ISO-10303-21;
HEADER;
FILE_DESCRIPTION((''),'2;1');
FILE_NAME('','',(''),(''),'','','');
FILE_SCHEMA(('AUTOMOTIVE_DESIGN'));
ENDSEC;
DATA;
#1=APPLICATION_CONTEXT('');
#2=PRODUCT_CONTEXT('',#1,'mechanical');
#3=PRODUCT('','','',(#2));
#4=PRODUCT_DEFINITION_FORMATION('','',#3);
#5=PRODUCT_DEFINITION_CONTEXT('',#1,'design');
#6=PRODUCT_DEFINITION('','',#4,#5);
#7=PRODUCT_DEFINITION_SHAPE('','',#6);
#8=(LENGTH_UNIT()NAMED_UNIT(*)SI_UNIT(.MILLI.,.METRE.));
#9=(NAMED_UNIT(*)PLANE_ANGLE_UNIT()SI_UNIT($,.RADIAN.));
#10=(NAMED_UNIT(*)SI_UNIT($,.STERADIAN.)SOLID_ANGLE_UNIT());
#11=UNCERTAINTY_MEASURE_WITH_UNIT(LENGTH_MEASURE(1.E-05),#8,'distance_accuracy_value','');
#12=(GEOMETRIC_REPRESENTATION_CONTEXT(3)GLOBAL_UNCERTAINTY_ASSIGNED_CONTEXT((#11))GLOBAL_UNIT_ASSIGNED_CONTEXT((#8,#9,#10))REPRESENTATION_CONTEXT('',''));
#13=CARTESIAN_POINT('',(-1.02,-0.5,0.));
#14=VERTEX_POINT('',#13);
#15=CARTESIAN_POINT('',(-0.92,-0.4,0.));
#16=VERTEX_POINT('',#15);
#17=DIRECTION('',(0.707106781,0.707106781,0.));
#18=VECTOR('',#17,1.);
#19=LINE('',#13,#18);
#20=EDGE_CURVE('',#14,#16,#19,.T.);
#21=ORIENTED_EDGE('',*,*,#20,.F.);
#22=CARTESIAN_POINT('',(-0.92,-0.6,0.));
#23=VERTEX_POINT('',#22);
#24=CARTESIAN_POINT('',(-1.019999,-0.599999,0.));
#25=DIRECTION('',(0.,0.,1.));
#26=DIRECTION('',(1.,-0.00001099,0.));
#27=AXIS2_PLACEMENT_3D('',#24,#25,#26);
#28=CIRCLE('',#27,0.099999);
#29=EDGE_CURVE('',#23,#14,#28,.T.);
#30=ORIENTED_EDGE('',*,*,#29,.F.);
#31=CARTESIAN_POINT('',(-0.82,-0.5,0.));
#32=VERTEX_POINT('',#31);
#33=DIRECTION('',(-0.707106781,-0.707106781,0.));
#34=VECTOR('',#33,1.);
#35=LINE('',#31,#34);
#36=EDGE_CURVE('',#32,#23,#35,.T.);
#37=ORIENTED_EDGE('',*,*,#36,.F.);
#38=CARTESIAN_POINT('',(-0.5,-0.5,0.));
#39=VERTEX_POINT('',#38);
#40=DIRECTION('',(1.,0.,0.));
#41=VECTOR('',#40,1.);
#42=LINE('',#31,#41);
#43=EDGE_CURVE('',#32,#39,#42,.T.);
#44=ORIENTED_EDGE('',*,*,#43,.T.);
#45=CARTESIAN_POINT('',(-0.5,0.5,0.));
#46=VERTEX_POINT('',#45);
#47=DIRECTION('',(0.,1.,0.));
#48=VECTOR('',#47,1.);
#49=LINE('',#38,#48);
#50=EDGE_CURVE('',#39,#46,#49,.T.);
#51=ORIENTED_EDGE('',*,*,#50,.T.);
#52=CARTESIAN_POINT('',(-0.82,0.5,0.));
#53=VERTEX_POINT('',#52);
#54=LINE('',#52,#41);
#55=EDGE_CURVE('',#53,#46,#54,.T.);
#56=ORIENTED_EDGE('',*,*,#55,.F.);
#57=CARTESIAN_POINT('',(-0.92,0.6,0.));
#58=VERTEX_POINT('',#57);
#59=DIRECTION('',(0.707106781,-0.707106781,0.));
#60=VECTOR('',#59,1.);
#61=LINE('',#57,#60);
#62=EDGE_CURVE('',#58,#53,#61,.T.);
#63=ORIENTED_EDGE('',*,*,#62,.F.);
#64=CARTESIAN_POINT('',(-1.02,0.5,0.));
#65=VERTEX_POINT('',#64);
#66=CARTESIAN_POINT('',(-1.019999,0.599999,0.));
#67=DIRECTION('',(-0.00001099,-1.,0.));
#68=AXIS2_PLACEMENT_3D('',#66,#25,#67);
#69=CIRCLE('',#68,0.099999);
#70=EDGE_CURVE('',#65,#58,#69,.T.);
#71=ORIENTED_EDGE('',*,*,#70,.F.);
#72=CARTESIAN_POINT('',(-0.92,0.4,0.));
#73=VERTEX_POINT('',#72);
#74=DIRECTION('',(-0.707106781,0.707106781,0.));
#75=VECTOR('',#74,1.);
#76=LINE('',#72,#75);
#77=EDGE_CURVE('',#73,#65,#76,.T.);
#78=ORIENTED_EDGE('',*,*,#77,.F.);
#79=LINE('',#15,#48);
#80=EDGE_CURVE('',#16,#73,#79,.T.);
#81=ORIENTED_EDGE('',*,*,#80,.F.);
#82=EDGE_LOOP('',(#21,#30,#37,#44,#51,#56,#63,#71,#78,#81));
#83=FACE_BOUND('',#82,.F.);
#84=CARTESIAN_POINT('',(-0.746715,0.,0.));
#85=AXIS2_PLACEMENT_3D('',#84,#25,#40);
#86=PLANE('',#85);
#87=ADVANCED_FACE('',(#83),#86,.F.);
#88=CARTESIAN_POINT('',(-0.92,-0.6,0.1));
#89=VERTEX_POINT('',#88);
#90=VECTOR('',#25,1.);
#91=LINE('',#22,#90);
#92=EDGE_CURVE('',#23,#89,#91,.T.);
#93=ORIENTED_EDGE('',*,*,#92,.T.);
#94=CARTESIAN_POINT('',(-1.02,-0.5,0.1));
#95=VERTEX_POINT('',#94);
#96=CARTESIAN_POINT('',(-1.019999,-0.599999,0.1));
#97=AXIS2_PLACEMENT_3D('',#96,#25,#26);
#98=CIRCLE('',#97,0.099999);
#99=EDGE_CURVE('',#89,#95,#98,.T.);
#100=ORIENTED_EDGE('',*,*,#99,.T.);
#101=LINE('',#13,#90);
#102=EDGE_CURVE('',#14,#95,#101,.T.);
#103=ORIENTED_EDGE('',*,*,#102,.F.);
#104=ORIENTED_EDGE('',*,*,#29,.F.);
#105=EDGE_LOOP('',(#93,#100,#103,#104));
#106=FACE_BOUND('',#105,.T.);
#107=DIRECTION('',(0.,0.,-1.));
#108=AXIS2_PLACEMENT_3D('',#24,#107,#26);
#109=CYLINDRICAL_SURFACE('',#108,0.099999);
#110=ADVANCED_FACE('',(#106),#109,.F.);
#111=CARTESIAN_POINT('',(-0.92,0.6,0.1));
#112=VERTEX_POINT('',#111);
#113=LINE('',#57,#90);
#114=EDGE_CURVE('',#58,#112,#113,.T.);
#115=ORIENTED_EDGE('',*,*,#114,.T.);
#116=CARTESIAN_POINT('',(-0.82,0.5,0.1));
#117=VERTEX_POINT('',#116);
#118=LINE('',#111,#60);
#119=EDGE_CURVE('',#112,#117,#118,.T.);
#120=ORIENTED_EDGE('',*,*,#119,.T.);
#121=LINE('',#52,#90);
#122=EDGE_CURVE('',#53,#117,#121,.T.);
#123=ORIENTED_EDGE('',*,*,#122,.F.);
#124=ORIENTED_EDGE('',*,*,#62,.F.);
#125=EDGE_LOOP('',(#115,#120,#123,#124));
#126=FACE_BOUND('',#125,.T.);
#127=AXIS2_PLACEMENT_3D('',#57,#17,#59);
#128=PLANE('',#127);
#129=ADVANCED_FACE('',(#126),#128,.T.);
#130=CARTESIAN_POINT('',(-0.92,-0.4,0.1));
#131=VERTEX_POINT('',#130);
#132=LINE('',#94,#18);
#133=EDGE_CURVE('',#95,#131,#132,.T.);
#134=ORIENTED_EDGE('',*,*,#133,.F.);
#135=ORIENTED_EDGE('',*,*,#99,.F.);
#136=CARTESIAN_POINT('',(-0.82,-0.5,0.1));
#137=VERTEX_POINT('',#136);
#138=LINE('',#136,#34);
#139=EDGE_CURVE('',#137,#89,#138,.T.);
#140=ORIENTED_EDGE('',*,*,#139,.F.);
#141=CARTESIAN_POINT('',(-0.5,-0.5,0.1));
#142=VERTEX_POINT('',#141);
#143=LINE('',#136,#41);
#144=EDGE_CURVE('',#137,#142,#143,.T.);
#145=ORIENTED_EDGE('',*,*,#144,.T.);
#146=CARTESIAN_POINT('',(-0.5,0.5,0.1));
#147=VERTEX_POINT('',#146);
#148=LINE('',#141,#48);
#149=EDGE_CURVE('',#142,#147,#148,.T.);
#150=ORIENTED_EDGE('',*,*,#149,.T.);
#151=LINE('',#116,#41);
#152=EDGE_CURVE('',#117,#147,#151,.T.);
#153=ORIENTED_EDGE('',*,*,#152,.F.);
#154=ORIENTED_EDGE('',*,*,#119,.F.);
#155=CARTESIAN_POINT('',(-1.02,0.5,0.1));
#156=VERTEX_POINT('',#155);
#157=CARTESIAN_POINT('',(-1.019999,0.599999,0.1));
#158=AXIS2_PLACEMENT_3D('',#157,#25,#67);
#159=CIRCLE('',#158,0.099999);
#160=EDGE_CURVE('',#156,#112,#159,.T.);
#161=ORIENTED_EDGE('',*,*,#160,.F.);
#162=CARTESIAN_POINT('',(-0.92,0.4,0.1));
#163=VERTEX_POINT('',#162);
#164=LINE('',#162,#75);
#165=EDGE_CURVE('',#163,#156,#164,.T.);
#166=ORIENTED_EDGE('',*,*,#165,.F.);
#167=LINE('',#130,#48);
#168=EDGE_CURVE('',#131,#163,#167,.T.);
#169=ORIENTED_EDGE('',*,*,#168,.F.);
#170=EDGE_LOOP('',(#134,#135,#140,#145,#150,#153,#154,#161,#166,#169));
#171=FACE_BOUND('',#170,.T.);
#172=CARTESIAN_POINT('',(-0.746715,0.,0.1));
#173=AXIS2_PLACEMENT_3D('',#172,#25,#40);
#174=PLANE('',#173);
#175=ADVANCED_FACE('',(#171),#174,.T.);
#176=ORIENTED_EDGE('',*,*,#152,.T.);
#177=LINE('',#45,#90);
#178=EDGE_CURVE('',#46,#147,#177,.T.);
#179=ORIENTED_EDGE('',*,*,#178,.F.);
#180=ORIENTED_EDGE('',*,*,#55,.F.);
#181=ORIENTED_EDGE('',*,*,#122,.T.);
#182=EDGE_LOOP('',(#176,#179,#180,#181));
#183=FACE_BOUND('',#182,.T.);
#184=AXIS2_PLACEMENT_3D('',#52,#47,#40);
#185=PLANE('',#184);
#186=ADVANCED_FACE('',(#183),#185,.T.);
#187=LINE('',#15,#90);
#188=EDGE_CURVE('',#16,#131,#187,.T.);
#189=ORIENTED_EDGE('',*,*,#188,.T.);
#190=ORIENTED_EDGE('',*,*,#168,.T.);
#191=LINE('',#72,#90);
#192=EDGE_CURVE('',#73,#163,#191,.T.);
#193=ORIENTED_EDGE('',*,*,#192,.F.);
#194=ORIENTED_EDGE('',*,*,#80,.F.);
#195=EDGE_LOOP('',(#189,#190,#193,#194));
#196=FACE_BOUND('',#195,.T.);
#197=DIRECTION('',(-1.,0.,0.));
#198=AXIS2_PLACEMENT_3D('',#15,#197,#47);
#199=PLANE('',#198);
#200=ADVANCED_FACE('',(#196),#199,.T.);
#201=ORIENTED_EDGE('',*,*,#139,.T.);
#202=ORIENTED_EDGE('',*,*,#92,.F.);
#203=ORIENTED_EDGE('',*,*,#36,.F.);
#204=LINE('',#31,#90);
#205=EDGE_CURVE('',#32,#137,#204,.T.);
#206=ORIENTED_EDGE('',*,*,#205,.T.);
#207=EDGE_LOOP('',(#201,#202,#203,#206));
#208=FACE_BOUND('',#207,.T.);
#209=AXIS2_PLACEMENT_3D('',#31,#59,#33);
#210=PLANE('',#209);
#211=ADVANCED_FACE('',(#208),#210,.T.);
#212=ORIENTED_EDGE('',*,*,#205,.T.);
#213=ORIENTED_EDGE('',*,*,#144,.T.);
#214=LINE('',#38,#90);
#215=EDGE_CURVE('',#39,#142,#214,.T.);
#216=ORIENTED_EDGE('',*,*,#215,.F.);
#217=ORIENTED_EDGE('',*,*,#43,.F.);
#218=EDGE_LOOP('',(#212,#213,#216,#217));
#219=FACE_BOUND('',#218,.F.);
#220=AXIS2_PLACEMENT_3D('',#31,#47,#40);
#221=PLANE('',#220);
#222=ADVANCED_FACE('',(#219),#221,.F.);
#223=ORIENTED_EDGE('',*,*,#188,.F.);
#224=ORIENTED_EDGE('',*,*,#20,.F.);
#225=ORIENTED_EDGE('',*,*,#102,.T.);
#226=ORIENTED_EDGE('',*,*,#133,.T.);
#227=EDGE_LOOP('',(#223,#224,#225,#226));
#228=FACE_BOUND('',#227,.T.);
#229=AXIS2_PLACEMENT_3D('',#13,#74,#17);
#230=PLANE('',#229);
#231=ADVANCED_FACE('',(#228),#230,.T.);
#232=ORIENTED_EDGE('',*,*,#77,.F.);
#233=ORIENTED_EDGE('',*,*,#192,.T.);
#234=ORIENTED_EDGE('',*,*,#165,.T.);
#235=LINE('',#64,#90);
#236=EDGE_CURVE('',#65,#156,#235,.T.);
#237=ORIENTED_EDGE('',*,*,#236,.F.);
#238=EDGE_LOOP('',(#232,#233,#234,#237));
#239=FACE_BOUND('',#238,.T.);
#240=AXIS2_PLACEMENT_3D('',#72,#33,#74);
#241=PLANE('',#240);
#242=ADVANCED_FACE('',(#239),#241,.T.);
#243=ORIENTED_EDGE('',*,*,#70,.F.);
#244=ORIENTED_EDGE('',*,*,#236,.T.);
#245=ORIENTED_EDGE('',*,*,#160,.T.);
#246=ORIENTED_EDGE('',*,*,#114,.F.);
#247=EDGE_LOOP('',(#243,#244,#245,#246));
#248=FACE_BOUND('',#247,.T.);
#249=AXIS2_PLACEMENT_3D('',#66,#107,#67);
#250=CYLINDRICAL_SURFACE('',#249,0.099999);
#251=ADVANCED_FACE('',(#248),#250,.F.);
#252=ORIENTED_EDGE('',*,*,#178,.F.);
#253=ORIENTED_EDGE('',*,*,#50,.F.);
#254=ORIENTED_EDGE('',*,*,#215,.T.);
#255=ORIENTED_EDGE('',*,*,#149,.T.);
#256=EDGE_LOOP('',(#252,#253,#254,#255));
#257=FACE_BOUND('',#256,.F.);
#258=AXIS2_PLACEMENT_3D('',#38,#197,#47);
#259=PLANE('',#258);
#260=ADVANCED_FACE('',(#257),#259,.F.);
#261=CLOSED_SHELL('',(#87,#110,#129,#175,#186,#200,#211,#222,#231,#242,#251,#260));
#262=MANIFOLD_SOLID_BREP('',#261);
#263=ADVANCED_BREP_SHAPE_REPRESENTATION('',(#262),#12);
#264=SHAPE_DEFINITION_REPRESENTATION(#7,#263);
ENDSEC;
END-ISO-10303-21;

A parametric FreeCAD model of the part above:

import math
import FreeCAD as App
import Part
import Sketcher
from FreeCAD import Vector
Q = App.Units.Quantity

doc = App.newDocument("Part")
body = doc.addObject("PartDesign::Body", "Body")

# Sketch on XY plane
sketch1 = doc.addObject("Sketcher::SketchObject", "Sketch")
body.addObject(sketch1)
sketch1.AttachmentSupport = (doc.XY_Plane, [""])
sketch1.MapMode = "FlatFace"
sketch1.addGeometry(Part.LineSegment(Vector(-0.5, -0.5, 0), Vector(-0.5, 0.5, 0)), False)
sketch1.addGeometry(Part.LineSegment(Vector(-0.5, 0.5, 0), Vector(-0.82, 0.5, 0)), False)
sketch1.addGeometry(Part.LineSegment(Vector(-0.82, 0.5, 0), Vector(-0.92, 0.6, 0)), False)
sketch1.addGeometry(Part.ArcOfCircle(Part.Circle(Vector(-1.02, 0.6, 0), Vector(0, 0, 1), 0.1), math.radians(-90), math.radians(0)), False)
sketch1.addGeometry(Part.LineSegment(Vector(-1.02, 0.5, 0), Vector(-0.92, 0.4, 0)), False)
sketch1.addGeometry(Part.LineSegment(Vector(-0.92, 0.4, 0), Vector(-0.92, -0.4, 0)), False)
sketch1.addGeometry(Part.LineSegment(Vector(-0.92, -0.4, 0), Vector(-1.02, -0.5, 0)), False)
sketch1.addGeometry(Part.ArcOfCircle(Part.Circle(Vector(-1.02, -0.6, 0), Vector(0, 0, 1), 0.1), math.radians(0), math.radians(90)), False)
sketch1.addGeometry(Part.LineSegment(Vector(-0.92, -0.6, 0), Vector(-0.82, -0.5, 0)), False)
sketch1.addGeometry(Part.LineSegment(Vector(-0.82, -0.5, 0), Vector(-0.5, -0.5, 0)), False)
sketch1.addConstraint(Sketcher.Constraint("Coincident", 0, 2, 1, 1))
sketch1.addConstraint(Sketcher.Constraint("Coincident", 1, 2, 2, 1))
sketch1.addConstraint(Sketcher.Constraint("Coincident", 2, 2, 3, 2))
sketch1.addConstraint(Sketcher.Constraint("Coincident", 3, 1, 4, 1))
sketch1.addConstraint(Sketcher.Constraint("Coincident", 4, 2, 5, 1))
sketch1.addConstraint(Sketcher.Constraint("Coincident", 5, 2, 6, 1))
sketch1.addConstraint(Sketcher.Constraint("Coincident", 6, 2, 7, 2))
sketch1.addConstraint(Sketcher.Constraint("Coincident", 7, 1, 8, 1))
sketch1.addConstraint(Sketcher.Constraint("Coincident", 8, 2, 9, 1))
sketch1.addConstraint(Sketcher.Constraint("Coincident", 9, 2, 0, 1))
sketch1.addConstraint(Sketcher.Constraint("Vertical", 0))
sketch1.addConstraint(Sketcher.Constraint("Horizontal", 1))
sketch1.addConstraint(Sketcher.Constraint("Vertical", 5))
sketch1.addConstraint(Sketcher.Constraint("Horizontal", 9))
sketch1.addConstraint(Sketcher.Constraint("Equal", 3, 7))
sketch1.addConstraint(Sketcher.Constraint("Symmetric", 3, 3, 7, 3, -1))
sketch1.addConstraint(Sketcher.Constraint("Symmetric", 1, 2, 8, 2, -1))
sketch1.addConstraint(Sketcher.Constraint("Parallel", 2, 4))
sketch1.addConstraint(Sketcher.Constraint("Perpendicular", 4, 6))
sketch1.addConstraint(Sketcher.Constraint("Parallel", 6, 8))
sketch1.addConstraint(Sketcher.Constraint("Horizontal", 3, 3, 2, 2))
sketch1.addConstraint(Sketcher.Constraint("Horizontal", 1, 2, 3, 1))
sketch1.addConstraint(Sketcher.Constraint("Vertical", 7, 3, 3, 1))
sketch1.addConstraint(Sketcher.Constraint("Vertical", 2, 2, 4, 2))
sketch1.addConstraint(Sketcher.Constraint("Vertical", 3, 1, 6, 2))
sketch1.addConstraint(Sketcher.Constraint("Equal", 2, 4))
sketch1.addConstraint(Sketcher.Constraint("Radius", 3, Q("0.099999 mm")))
sketch1.addConstraint(Sketcher.Constraint("DistanceY", 0, 1, 0, 2, Q("1 mm")))
sketch1.addConstraint(Sketcher.Constraint("DistanceX", 1, 2, 1, 1, Q("0.32 mm")))
sketch1.addConstraint(Sketcher.Constraint("DistanceX", 0, 2, -1, 1, Q("0.5 mm")))
pad1 = doc.addObject("PartDesign::Pad", "Pad")
body.addObject(pad1)
pad1.Profile = sketch1
pad1.Length = 0.1

doc.recompute()
